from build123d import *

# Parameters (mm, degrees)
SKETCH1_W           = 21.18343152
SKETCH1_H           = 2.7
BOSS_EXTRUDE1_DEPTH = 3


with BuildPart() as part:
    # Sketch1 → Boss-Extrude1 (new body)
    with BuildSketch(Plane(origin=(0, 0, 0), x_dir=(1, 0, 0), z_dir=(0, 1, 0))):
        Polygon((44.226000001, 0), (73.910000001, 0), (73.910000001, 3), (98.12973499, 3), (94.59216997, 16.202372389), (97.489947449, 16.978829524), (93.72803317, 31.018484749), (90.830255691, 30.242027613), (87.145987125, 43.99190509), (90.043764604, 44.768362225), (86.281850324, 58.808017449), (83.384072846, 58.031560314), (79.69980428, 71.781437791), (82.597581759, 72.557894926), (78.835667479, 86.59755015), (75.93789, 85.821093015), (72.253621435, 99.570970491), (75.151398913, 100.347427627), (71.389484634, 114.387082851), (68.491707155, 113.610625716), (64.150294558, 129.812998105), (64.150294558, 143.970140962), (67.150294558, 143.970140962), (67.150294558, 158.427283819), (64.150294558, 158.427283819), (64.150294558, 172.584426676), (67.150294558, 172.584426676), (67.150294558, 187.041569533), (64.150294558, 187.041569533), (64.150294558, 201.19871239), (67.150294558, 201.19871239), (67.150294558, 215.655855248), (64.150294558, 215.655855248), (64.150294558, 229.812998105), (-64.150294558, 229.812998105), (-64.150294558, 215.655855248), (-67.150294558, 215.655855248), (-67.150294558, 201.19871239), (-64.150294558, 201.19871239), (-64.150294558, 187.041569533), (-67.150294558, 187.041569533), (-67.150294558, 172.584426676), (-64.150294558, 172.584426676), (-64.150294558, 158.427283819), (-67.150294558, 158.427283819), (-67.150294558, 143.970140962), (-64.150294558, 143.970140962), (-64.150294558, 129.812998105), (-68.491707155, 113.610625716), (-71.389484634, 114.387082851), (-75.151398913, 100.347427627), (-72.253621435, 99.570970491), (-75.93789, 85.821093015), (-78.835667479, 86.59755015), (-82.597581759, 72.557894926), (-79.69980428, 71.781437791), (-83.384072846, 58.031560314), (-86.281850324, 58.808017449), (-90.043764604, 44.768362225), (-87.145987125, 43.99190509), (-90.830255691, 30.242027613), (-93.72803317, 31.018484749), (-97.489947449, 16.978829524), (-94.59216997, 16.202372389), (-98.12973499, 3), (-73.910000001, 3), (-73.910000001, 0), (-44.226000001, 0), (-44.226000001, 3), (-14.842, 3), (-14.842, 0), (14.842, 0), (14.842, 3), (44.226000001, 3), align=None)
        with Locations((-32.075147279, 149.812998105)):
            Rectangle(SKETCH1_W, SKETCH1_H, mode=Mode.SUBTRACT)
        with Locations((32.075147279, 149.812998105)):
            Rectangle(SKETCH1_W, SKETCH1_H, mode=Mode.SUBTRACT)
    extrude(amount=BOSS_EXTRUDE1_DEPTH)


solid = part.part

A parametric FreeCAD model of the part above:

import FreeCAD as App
import Part
import Sketcher
from FreeCAD import Vector
Q = App.Units.Quantity


def add_polygon(sketch, points):
    """Adds a closed chain of lines whose ends are joined by coincident constraints."""
    first, n = sketch.GeometryCount, len(points)
    for a, b in zip(points, points[1:] + points[:1]):
        sketch.addGeometry(Part.LineSegment(App.Vector(*a, 0), App.Vector(*b, 0)), False)
    for i in range(n):
        sketch.addConstraint(Sketcher.Constraint("Coincident", first + i, 2, first + (i + 1) % n, 1))

doc = App.newDocument("Part")
body = doc.addObject("PartDesign::Body", "Body")

# Sketch on XZ plane
sketch1 = doc.addObject("Sketcher::SketchObject", "Sketch")
body.addObject(sketch1)
sketch1.AttachmentSupport = (doc.XZ_Plane, [""])
sketch1.MapMode = "FlatFace"
add_polygon(sketch1, [(44.2, 0), (73.9, 0), (73.9, -3), (98.1, -3), (94.6, -16.2), (97.5, -17), (93.7, -31), (90.8, -30.2), (87.1, -44), (90, -44.8), (86.3, -58.8), (83.4, -58), (79.7, -71.8), (82.6, -72.6), (78.8, -86.6), (75.9, -85.8), (72.3, -99.6), (75.2, -100.3), (71.4, -114.4), (68.5, -113.6), (64.2, -129.8), (64.2, -144), (67.2, -144), (67.2, -158.4), (64.2, -158.4), (64.2, -172.6), (67.2, -172.6), (67.2, -187), (64.2, -187), (64.2, -201.2), (67.2, -201.2), (67.2, -215.7), (64.2, -215.7), (64.2, -229.8), (-64.2, -229.8), (-64.2, -215.7), (-67.2, -215.7), (-67.2, -201.2), (-64.2, -201.2), (-64.2, -187), (-67.2, -187), (-67.2, -172.6), (-64.2, -172.6), (-64.2, -158.4), (-67.2, -158.4), (-67.2, -144), (-64.2, -144), (-64.2, -129.8), (-68.5, -113.6), (-71.4, -114.4), (-75.2, -100.3), (-72.3, -99.6), (-75.9, -85.8), (-78.8, -86.6), (-82.6, -72.6), (-79.7, -71.8), (-83.4, -58), (-86.3, -58.8), (-90, -44.8), (-87.1, -44), (-90.8, -30.2), (-93.7, -31), (-97.5, -17), (-94.6, -16.2), (-98.1, -3), (-73.9, -3), (-73.9, 0), (-44.2, 0), (-44.2, -3), (-14.8, -3), (-14.8, 0), (14.8, 0), (14.8, -3), (44.2, -3)])  # lines 0-73
add_polygon(sketch1, [(-21.5, -148.5), (-42.7, -148.5), (-42.7, -151.2), (-21.5, -151.2)])  # lines 74-77
add_polygon(sketch1, [(42.7, -148.5), (21.5, -148.5), (21.5, -151.2), (42.7, -151.2)])  # lines 78-81
sketch1.addConstraint([
    Sketcher.Constraint("Horizontal", 0),
    Sketcher.Constraint("Vertical", 1),
    Sketcher.Constraint("Horizontal", 2),
    Sketcher.Constraint("Vertical", 20),
    Sketcher.Constraint("Horizontal", 21),
    Sketcher.Constraint("Vertical", 22),
    Sketcher.Constraint("Horizontal", 23),
    Sketcher.Constraint("Vertical", 24),
    Sketcher.Constraint("Horizontal", 25),
    Sketcher.Constraint("Vertical", 26),
    Sketcher.Constraint("Horizontal", 27),
    Sketcher.Constraint("Vertical", 28),
    Sketcher.Constraint("Horizontal", 29),
    Sketcher.Constraint("Vertical", 30),
    Sketcher.Constraint("Horizontal", 31),
    Sketcher.Constraint("Vertical", 32),
    Sketcher.Constraint("Horizontal", 33),
    Sketcher.Constraint("Vertical", 34),
    Sketcher.Constraint("Horizontal", 35),
    Sketcher.Constraint("Vertical", 36),
    Sketcher.Constraint("Horizontal", 37),
    Sketcher.Constraint("Vertical", 38),
    Sketcher.Constraint("Horizontal", 39),
    Sketcher.Constraint("Vertical", 40),
    Sketcher.Constraint("Horizontal", 41),
    Sketcher.Constraint("Vertical", 42),
    Sketcher.Constraint("Horizontal", 43),
    Sketcher.Constraint("Vertical", 44),
    Sketcher.Constraint("Horizontal", 45),
    Sketcher.Constraint("Vertical", 46),
    Sketcher.Constraint("Horizontal", 64),
    Sketcher.Constraint("Vertical", 65),
    Sketcher.Constraint("Horizontal", 66),
    Sketcher.Constraint("Vertical", 67),
    Sketcher.Constraint("Horizontal", 68),
    Sketcher.Constraint("Vertical", 69),
    Sketcher.Constraint("Horizontal", 70),
    Sketcher.Constraint("Vertical", 71),
    Sketcher.Constraint("Horizontal", 72),
    Sketcher.Constraint("Vertical", 73),
    Sketcher.Constraint("Horizontal", 74),
    Sketcher.Constraint("Vertical", 75),
    Sketcher.Constraint("Horizontal", 76),
    Sketcher.Constraint("Vertical", 77),
    Sketcher.Constraint("Horizontal", 78),
    Sketcher.Constraint("Vertical", 79),
    Sketcher.Constraint("Horizontal", 80),
    Sketcher.Constraint("Vertical", 81),
    Sketcher.Constraint("Symmetric", 0, 2, 65, 2, -1, 1),
    Sketcher.Constraint("Symmetric", 69, 2, 70, 2, -1, 1),
    Sketcher.Constraint("Symmetric", 31, 2, 34, 2, -2),
    Sketcher.Constraint("Symmetric", 29, 2, 36, 2, -2),
    Sketcher.Constraint("Symmetric", 27, 2, 38, 2, -2),
    Sketcher.Constraint("Symmetric", 25, 2, 40, 2, -2),
    Sketcher.Constraint("Symmetric", 23, 2, 42, 2, -2),
    Sketcher.Constraint("Symmetric", 21, 2, 44, 2, -2),
    Sketcher.Constraint("Symmetric", 19, 2, 46, 2, -2),
    Sketcher.Constraint("Symmetric", 18, 2, 47, 2, -2),
    Sketcher.Constraint("Symmetric", 17, 2, 48, 2, -2),
    Sketcher.Constraint("Symmetric", 16, 2, 49, 2, -2),
    Sketcher.Constraint("Symmetric", 15, 2, 50, 2, -2),
    Sketcher.Constraint("Symmetric", 14, 2, 51, 2, -2),
    Sketcher.Constraint("Symmetric", 13, 2, 52, 2, -2),
    Sketcher.Constraint("Symmetric", 12, 2, 53, 2, -2),
    Sketcher.Constraint("Symmetric", 11, 2, 54, 2, -2),
    Sketcher.Constraint("Symmetric", 10, 2, 55, 2, -2),
    Sketcher.Constraint("Symmetric", 9, 2, 56, 2, -2),
    Sketcher.Constraint("Symmetric", 8, 2, 57, 2, -2),
    Sketcher.Constraint("Symmetric", 7, 2, 58, 2, -2),
    Sketcher.Constraint("Symmetric", 6, 2, 59, 2, -2),
    Sketcher.Constraint("Symmetric", 5, 2, 60, 2, -2),
    Sketcher.Constraint("Symmetric", 4, 2, 61, 2, -2),
    Sketcher.Constraint("Symmetric", 3, 2, 62, 2, -2),
    Sketcher.Constraint("Symmetric", 2, 2, 63, 2, -2),
    Sketcher.Constraint("Symmetric", 67, 2, 72, 2, -2),
    Sketcher.Constraint("Symmetric", 77, 2, 78, 2, -2),
    Sketcher.Constraint("Symmetric", 75, 2, 80, 2, -2),
    Sketcher.Constraint("PointOnObject", 0, 2, -1),
    Sketcher.Constraint("Perpendicular", 3, 4),
    Sketcher.Constraint("Perpendicular", 4, 5),
    Sketcher.Constraint("Perpendicular", 5, 6),
    Sketcher.Constraint("Perpendicular", 6, 7),
    Sketcher.Constraint("Perpendicular", 7, 8),
    Sketcher.Constraint("Perpendicular", 8, 9),
    Sketcher.Constraint("Perpendicular", 9, 10),
    Sketcher.Constraint("Perpendicular", 10, 11),
    Sketcher.Constraint("Perpendicular", 11, 12),
    Sketcher.Constraint("Perpendicular", 12, 13),
    Sketcher.Constraint("Perpendicular", 13, 14),
    Sketcher.Constraint("Perpendicular", 14, 15),
    Sketcher.Constraint("Perpendicular", 15, 16),
    Sketcher.Constraint("Perpendicular", 16, 17),
    Sketcher.Constraint("Perpendicular", 17, 18),
    Sketcher.Constraint("Perpendicular", 18, 19),
    Sketcher.Constraint("Horizontal", 64, 2, 67, 2),
    Sketcher.Constraint("Vertical", 20, 2, 23, 2),
    Sketcher.Constraint("Vertical", 22, 2, 25, 2),
    Sketcher.Constraint("Vertical", 24, 2, 27, 2),
    Sketcher.Constraint("Vertical", 26, 2, 29, 2),
    Sketcher.Constraint("Vertical", 28, 2, 31, 2),
    Sketcher.Constraint("Equal", 66, 70),
    Sketcher.Constraint("Equal", 45, 1),
    Sketcher.Constraint("Equal", 20, 24),
    Sketcher.Constraint("Equal", 22, 26),
    Sketcher.Constraint("Equal", 24, 28),
    Sketcher.Constraint("Equal", 26, 30),
    Sketcher.Constraint("Equal", 28, 32),
    Sketcher.Constraint("Equal", 4, 6),
    Sketcher.Constraint("Equal", 6, 8),
    Sketcher.Constraint("Equal", 5, 9),
    Sketcher.Constraint("Equal", 8, 10),
    Sketcher.Constraint("Equal", 7, 11),
    Sketcher.Constraint("Equal", 10, 12),
    Sketcher.Constraint("Equal", 9, 13),
    Sketcher.Constraint("Equal", 12, 14),
    Sketcher.Constraint("Equal", 11, 15),
    Sketcher.Constraint("Equal", 14, 16),
    Sketcher.Constraint("Equal", 13, 17),
    Sketcher.Constraint("Equal", 16, 18),
    Sketcher.Constraint("DistanceX", 21, 1, 21, 2, 3.0),
    Sketcher.Constraint("Angle", 3, Q("-105 deg")),
    Sketcher.Constraint("Distance", 4, 3.0),
    Sketcher.Constraint("DistanceY", 75, 2, 75, 1, 2.7),
    Sketcher.Constraint("DistanceX", 0, 1, 0, 2, 29.684),
    Sketcher.Constraint("DistanceX", 68, 1, 68, 2, 29.384),
    Sketcher.Constraint("DistanceY", 19, 2, -1, 1, 129.812998),
    Sketcher.Constraint("DistanceY", 32, 2, -1, 1, 229.812998),
    Sketcher.Constraint("DistanceY", 74, 2, -1, 1, 148.462998),
    Sketcher.Constraint("Distance", 3, 13.668102),
    Sketcher.Constraint("DistanceX", 33, 2, 33, 1, 128.300589),
    Sketcher.Constraint("DistanceX", 74, 2, 74, 1, 21.183432),
    Sketcher.Constraint("DistanceX", -1, 1, 16, 2, 75.151399),
    Sketcher.Constraint("Distance", 5, 14.534921),
    Sketcher.Constraint("DistanceY", 20, 2, 20, 1, 14.157143),
    Sketcher.Constraint("DistanceX", 76, 2, -1, 1, 21.483432),
])
pad1 = doc.addObject("PartDesign::Pad", "Pad")
body.addObject(pad1)
pad1.Profile = sketch1
pad1.Length = 3
pad1.Reversed = True

doc.recompute()
